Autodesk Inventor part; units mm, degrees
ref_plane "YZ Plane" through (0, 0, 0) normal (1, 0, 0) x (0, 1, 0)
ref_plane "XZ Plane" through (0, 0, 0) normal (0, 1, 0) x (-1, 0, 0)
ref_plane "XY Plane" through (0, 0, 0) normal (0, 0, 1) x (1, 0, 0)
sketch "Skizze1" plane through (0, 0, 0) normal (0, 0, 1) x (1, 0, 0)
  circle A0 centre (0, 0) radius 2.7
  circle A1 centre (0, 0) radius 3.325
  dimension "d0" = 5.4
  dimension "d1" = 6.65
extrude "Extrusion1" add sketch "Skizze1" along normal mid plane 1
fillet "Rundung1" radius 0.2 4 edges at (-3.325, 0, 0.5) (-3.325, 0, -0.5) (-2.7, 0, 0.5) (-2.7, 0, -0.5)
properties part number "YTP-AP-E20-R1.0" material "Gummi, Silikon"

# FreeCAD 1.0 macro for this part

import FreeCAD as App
import Part
import Sketcher


def edges_at(feature, points):
    """Names of the edges that pass closest to the given points."""
    edges = feature.Shape.Edges
    near = lambda p: min(range(len(edges)), key=lambda i: edges[i].distToShape(Part.Vertex(*p))[0])
    return sorted({f"Edge{near(p) + 1}" for p in points})

doc = App.newDocument("Part")
body = doc.addObject("PartDesign::Body", "Body")

sketch1 = body.newObject("Sketcher::SketchObject", "Sketch")
sketch1.AttachmentSupport = (doc.getObject("XY_Plane"), [""])
sketch1.MapMode = "FlatFace"
sketch1.addGeometry([
    Part.Circle(App.Vector(0, 0, 0), App.Vector(0, 0, 1), 3.3),
    Part.Circle(App.Vector(0, 0, 0), App.Vector(0, 0, 1), 2.7),
], False)
sketch1.addConstraint([
    Sketcher.Constraint("Coincident", 0, 3, -1, 1),
    Sketcher.Constraint("Coincident", 1, 3, -1, 1),
    Sketcher.Constraint("Diameter", 1, 5.4),
    Sketcher.Constraint("Diameter", 0, 6.65),
])
pad1 = body.newObject("PartDesign::Pad", "Pad")
pad1.Profile = sketch1
pad1.Length = 1
pad1.Midplane = True
doc.recompute()

fillet = body.newObject("PartDesign::Fillet", "Fillet")
fillet.Base = (pad1, edges_at(pad1, [
    (-3.325, 0, 0.5),
    (-3.325, 0, -0.5),
    (-2.7, 0, 0.5),
    (-2.7, 0, -0.5),
]))
fillet.Radius = 0.2

doc.recompute()
